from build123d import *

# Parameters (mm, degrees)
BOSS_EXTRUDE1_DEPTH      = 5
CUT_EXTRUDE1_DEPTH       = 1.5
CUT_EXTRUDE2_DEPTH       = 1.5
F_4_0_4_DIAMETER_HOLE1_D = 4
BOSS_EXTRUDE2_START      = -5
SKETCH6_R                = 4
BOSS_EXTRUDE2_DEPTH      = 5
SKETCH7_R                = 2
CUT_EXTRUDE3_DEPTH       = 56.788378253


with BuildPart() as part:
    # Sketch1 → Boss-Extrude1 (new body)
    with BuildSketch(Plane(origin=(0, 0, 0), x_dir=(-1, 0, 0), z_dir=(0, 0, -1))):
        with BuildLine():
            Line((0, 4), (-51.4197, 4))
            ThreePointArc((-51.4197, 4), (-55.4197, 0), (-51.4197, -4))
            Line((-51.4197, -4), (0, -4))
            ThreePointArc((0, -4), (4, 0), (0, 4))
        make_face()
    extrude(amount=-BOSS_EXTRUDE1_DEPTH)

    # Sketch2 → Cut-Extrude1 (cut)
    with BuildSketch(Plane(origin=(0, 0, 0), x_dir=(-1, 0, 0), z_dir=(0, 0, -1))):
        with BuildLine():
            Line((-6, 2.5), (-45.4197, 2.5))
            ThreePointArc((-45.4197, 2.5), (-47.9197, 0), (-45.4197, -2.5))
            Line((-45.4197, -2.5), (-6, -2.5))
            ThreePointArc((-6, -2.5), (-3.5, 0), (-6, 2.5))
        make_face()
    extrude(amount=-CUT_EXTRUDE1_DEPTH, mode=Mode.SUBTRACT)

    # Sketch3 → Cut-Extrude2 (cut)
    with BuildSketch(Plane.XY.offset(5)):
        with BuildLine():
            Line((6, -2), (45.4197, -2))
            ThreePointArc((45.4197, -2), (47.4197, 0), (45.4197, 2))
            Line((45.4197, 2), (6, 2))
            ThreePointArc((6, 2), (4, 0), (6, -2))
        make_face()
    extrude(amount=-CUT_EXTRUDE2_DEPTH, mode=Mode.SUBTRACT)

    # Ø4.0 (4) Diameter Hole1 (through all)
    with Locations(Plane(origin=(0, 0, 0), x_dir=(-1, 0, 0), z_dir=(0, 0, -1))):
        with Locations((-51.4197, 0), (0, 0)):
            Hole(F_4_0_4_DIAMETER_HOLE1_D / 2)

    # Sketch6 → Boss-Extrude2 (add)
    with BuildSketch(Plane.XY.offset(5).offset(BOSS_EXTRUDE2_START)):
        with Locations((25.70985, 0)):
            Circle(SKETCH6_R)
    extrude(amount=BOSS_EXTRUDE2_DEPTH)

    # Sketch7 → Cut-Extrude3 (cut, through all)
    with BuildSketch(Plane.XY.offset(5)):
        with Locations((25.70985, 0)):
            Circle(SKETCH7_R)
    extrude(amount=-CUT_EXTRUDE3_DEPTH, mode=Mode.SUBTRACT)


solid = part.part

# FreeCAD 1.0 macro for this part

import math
import FreeCAD as App
import Part
import Sketcher

V = App.Vector
Q = App.Units.Quantity

doc = App.newDocument("Part")
body = doc.addObject("PartDesign::Body", "Body")

# Sketch on XY plane
sketch1 = doc.addObject("Sketcher::SketchObject", "Sketch")
body.addObject(sketch1)
sketch1.AttachmentSupport = (doc.XY_Plane, [""])
sketch1.MapMode = "FlatFace"
sketch1.addGeometry(Part.LineSegment(V(0, 4, 0), V(51.4, 4, 0)), False)
sketch1.addGeometry(Part.ArcOfCircle(Part.Circle(V(51.4, 0, 0), V(0, 0, 1), 4), math.radians(-90), math.radians(90)), False)
sketch1.addGeometry(Part.LineSegment(V(51.4, -4, 0), V(0, -4, 0)), False)
sketch1.addGeometry(Part.ArcOfCircle(Part.Circle(V(0, 0, 0), V(0, 0, 1), 4), math.radians(90), math.radians(270)), False)
sketch1.addConstraint(Sketcher.Constraint("Tangent", 0, 2, 1, 2))
sketch1.addConstraint(Sketcher.Constraint("Tangent", 1, 1, 2, 1))
sketch1.addConstraint(Sketcher.Constraint("Tangent", 2, 2, 3, 2))
sketch1.addConstraint(Sketcher.Constraint("Tangent", 3, 1, 0, 1))
sketch1.addConstraint(Sketcher.Constraint("Horizontal", 0))
sketch1.addConstraint(Sketcher.Constraint("Horizontal", 2))
sketch1.addConstraint(Sketcher.Constraint("Coincident", 3, 3, -1, 1))
sketch1.addConstraint(Sketcher.Constraint("Radius", 1, Q("4 mm")))
sketch1.addConstraint(Sketcher.Constraint("DistanceX", 0, 1, 0, 2, Q("51.4197 mm")))
pad1 = doc.addObject("PartDesign::Pad", "Pad")
body.addObject(pad1)
pad1.Profile = sketch1
pad1.Length = 5

# Sketch on XY plane
sketch2 = doc.addObject("Sketcher::SketchObject", "Sketch001")
body.addObject(sketch2)
sketch2.AttachmentSupport = (doc.XY_Plane, [""])
sketch2.MapMode = "FlatFace"
sketch2.addGeometry(Part.LineSegment(V(6, 2.5, 0), V(45.4, 2.5, 0)), False)
sketch2.addGeometry(Part.ArcOfCircle(Part.Circle(V(45.4, 0, 0), V(0, 0, 1), 2.5), math.radians(-90), math.radians(90)), False)
sketch2.addGeometry(Part.LineSegment(V(45.4, -2.5, 0), V(6, -2.5, 0)), False)
sketch2.addGeometry(Part.ArcOfCircle(Part.Circle(V(6, 0, 0), V(0, 0, 1), 2.5), math.radians(90), math.radians(270)), False)
sketch2.addConstraint(Sketcher.Constraint("Tangent", 0, 2, 1, 2))
sketch2.addConstraint(Sketcher.Constraint("Tangent", 1, 1, 2, 1))
sketch2.addConstraint(Sketcher.Constraint("Tangent", 2, 2, 3, 2))
sketch2.addConstraint(Sketcher.Constraint("Tangent", 3, 1, 0, 1))
sketch2.addConstraint(Sketcher.Constraint("Horizontal", 0))
sketch2.addConstraint(Sketcher.Constraint("Horizontal", 2))
sketch2.addConstraint(Sketcher.Constraint("PointOnObject", 1, 3, -1))
sketch2.addConstraint(Sketcher.Constraint("Radius", 1, Q("2.5 mm")))
sketch2.addConstraint(Sketcher.Constraint("DistanceX", -1, 1, 3, 3, Q("6 mm")))
sketch2.addConstraint(Sketcher.Constraint("DistanceX", 0, 1, 0, 2, Q("39.4197 mm")))
pocket1 = doc.addObject("PartDesign::Pocket", "Pocket")
body.addObject(pocket1)
pocket1.Profile = sketch2
pocket1.Length = 1.5
pocket1.Reversed = True

# Sketch on XY plane
sketch3 = doc.addObject("Sketcher::SketchObject", "Sketch002")
body.addObject(sketch3)
sketch3.AttachmentSupport = (doc.XY_Plane, [""])
sketch3.MapMode = "FlatFace"
sketch3.AttachmentOffset = App.Placement(V(0, 0, 5), App.Rotation())
sketch3.addGeometry(Part.LineSegment(V(6, -2, 0), V(45.4, -2, 0)), False)
sketch3.addGeometry(Part.ArcOfCircle(Part.Circle(V(45.4, 0, 0), V(0, 0, 1), 2), math.radians(-90), math.radians(90)), False)
sketch3.addGeometry(Part.LineSegment(V(45.4, 2, 0), V(6, 2, 0)), False)
sketch3.addGeometry(Part.ArcOfCircle(Part.Circle(V(6, 0, 0), V(0, 0, 1), 2), math.radians(90), math.radians(270)), False)
sketch3.addConstraint(Sketcher.Constraint("Tangent", 0, 2, 1, 1))
sketch3.addConstraint(Sketcher.Constraint("Tangent", 1, 2, 2, 1))
sketch3.addConstraint(Sketcher.Constraint("Tangent", 2, 2, 3, 1))
sketch3.addConstraint(Sketcher.Constraint("Tangent", 3, 2, 0, 1))
sketch3.addConstraint(Sketcher.Constraint("Horizontal", 0))
sketch3.addConstraint(Sketcher.Constraint("Horizontal", 2))
sketch3.addConstraint(Sketcher.Constraint("PointOnObject", 1, 3, -1))
sketch3.addConstraint(Sketcher.Constraint("Radius", 1, Q("2 mm")))
sketch3.addConstraint(Sketcher.Constraint("DistanceX", -1, 1, 3, 3, Q("6 mm")))
sketch3.addConstraint(Sketcher.Constraint("DistanceX", 0, 1, 0, 2, Q("39.4197 mm")))
pocket2 = doc.addObject("PartDesign::Pocket", "Pocket001")
body.addObject(pocket2)
pocket2.Profile = sketch3
pocket2.Length = 1.5

# Sketch on XY plane
sketch4 = doc.addObject("Sketcher::SketchObject", "Sketch003")
body.addObject(sketch4)
sketch4.AttachmentSupport = (doc.XY_Plane, [""])
sketch4.MapMode = "FlatFace"
sketch4.addGeometry(Part.Circle(V(51.4, 0, 0), V(0, 0, 1), 2), False)
sketch4.addGeometry(Part.Circle(V(0, 0, 0), V(0, 0, 1), 2), False)
sketch4.addConstraint(Sketcher.Constraint("Coincident", 1, 3, -1, 1))
sketch4.addConstraint(Sketcher.Constraint("Equal", 0, 1))
sketch4.addConstraint(Sketcher.Constraint("PointOnObject", 0, 3, -1))
sketch4.addConstraint(Sketcher.Constraint("Diameter", 0, Q("4 mm")))
sketch4.addConstraint(Sketcher.Constraint("DistanceX", -1, 1, 0, 3, Q("51.4197 mm")))
doc.recompute()
hole = doc.addObject("PartDesign::Hole", "Hole")
body.addObject(hole)
hole.Profile = sketch4
hole.ThreadType = "None"
hole.Diameter = 4
hole.DepthType = "ThroughAll"
hole.Reversed = True

# Sketch on XY plane
sketch5 = doc.addObject("Sketcher::SketchObject", "Sketch004")
body.addObject(sketch5)
sketch5.AttachmentSupport = (doc.XY_Plane, [""])
sketch5.MapMode = "FlatFace"
sketch5.addGeometry(Part.Circle(V(25.7, 0, 0), V(0, 0, 1), 4), False)
sketch5.addConstraint(Sketcher.Constraint("PointOnObject", 0, 3, -1))
sketch5.addConstraint(Sketcher.Constraint("Diameter", 0, Q("8 mm")))
sketch5.addConstraint(Sketcher.Constraint("DistanceX", -1, 1, 0, 3, Q("25.70985 mm")))
pad2 = doc.addObject("PartDesign::Pad", "Pad001")
body.addObject(pad2)
pad2.Profile = sketch5
pad2.Length = 5

# Sketch on XY plane
sketch6 = doc.addObject("Sketcher::SketchObject", "Sketch005")
body.addObject(sketch6)
sketch6.AttachmentSupport = (doc.XY_Plane, [""])
sketch6.MapMode = "FlatFace"
sketch6.AttachmentOffset = App.Placement(V(0, 0, 5), App.Rotation())
sketch6.addGeometry(Part.Circle(V(25.7, 0, 0), V(0, 0, 1), 2), False)
sketch6.addConstraint(Sketcher.Constraint("PointOnObject", 0, 3, -1))
sketch6.addConstraint(Sketcher.Constraint("Diameter", 0, Q("4 mm")))
sketch6.addConstraint(Sketcher.Constraint("DistanceX", -1, 1, 0, 3, Q("25.70985 mm")))
pocket3 = doc.addObject("PartDesign::Pocket", "Pocket002")
body.addObject(pocket3)
pocket3.Profile = sketch6
pocket3.Type = "ThroughAll"

doc.recompute()
